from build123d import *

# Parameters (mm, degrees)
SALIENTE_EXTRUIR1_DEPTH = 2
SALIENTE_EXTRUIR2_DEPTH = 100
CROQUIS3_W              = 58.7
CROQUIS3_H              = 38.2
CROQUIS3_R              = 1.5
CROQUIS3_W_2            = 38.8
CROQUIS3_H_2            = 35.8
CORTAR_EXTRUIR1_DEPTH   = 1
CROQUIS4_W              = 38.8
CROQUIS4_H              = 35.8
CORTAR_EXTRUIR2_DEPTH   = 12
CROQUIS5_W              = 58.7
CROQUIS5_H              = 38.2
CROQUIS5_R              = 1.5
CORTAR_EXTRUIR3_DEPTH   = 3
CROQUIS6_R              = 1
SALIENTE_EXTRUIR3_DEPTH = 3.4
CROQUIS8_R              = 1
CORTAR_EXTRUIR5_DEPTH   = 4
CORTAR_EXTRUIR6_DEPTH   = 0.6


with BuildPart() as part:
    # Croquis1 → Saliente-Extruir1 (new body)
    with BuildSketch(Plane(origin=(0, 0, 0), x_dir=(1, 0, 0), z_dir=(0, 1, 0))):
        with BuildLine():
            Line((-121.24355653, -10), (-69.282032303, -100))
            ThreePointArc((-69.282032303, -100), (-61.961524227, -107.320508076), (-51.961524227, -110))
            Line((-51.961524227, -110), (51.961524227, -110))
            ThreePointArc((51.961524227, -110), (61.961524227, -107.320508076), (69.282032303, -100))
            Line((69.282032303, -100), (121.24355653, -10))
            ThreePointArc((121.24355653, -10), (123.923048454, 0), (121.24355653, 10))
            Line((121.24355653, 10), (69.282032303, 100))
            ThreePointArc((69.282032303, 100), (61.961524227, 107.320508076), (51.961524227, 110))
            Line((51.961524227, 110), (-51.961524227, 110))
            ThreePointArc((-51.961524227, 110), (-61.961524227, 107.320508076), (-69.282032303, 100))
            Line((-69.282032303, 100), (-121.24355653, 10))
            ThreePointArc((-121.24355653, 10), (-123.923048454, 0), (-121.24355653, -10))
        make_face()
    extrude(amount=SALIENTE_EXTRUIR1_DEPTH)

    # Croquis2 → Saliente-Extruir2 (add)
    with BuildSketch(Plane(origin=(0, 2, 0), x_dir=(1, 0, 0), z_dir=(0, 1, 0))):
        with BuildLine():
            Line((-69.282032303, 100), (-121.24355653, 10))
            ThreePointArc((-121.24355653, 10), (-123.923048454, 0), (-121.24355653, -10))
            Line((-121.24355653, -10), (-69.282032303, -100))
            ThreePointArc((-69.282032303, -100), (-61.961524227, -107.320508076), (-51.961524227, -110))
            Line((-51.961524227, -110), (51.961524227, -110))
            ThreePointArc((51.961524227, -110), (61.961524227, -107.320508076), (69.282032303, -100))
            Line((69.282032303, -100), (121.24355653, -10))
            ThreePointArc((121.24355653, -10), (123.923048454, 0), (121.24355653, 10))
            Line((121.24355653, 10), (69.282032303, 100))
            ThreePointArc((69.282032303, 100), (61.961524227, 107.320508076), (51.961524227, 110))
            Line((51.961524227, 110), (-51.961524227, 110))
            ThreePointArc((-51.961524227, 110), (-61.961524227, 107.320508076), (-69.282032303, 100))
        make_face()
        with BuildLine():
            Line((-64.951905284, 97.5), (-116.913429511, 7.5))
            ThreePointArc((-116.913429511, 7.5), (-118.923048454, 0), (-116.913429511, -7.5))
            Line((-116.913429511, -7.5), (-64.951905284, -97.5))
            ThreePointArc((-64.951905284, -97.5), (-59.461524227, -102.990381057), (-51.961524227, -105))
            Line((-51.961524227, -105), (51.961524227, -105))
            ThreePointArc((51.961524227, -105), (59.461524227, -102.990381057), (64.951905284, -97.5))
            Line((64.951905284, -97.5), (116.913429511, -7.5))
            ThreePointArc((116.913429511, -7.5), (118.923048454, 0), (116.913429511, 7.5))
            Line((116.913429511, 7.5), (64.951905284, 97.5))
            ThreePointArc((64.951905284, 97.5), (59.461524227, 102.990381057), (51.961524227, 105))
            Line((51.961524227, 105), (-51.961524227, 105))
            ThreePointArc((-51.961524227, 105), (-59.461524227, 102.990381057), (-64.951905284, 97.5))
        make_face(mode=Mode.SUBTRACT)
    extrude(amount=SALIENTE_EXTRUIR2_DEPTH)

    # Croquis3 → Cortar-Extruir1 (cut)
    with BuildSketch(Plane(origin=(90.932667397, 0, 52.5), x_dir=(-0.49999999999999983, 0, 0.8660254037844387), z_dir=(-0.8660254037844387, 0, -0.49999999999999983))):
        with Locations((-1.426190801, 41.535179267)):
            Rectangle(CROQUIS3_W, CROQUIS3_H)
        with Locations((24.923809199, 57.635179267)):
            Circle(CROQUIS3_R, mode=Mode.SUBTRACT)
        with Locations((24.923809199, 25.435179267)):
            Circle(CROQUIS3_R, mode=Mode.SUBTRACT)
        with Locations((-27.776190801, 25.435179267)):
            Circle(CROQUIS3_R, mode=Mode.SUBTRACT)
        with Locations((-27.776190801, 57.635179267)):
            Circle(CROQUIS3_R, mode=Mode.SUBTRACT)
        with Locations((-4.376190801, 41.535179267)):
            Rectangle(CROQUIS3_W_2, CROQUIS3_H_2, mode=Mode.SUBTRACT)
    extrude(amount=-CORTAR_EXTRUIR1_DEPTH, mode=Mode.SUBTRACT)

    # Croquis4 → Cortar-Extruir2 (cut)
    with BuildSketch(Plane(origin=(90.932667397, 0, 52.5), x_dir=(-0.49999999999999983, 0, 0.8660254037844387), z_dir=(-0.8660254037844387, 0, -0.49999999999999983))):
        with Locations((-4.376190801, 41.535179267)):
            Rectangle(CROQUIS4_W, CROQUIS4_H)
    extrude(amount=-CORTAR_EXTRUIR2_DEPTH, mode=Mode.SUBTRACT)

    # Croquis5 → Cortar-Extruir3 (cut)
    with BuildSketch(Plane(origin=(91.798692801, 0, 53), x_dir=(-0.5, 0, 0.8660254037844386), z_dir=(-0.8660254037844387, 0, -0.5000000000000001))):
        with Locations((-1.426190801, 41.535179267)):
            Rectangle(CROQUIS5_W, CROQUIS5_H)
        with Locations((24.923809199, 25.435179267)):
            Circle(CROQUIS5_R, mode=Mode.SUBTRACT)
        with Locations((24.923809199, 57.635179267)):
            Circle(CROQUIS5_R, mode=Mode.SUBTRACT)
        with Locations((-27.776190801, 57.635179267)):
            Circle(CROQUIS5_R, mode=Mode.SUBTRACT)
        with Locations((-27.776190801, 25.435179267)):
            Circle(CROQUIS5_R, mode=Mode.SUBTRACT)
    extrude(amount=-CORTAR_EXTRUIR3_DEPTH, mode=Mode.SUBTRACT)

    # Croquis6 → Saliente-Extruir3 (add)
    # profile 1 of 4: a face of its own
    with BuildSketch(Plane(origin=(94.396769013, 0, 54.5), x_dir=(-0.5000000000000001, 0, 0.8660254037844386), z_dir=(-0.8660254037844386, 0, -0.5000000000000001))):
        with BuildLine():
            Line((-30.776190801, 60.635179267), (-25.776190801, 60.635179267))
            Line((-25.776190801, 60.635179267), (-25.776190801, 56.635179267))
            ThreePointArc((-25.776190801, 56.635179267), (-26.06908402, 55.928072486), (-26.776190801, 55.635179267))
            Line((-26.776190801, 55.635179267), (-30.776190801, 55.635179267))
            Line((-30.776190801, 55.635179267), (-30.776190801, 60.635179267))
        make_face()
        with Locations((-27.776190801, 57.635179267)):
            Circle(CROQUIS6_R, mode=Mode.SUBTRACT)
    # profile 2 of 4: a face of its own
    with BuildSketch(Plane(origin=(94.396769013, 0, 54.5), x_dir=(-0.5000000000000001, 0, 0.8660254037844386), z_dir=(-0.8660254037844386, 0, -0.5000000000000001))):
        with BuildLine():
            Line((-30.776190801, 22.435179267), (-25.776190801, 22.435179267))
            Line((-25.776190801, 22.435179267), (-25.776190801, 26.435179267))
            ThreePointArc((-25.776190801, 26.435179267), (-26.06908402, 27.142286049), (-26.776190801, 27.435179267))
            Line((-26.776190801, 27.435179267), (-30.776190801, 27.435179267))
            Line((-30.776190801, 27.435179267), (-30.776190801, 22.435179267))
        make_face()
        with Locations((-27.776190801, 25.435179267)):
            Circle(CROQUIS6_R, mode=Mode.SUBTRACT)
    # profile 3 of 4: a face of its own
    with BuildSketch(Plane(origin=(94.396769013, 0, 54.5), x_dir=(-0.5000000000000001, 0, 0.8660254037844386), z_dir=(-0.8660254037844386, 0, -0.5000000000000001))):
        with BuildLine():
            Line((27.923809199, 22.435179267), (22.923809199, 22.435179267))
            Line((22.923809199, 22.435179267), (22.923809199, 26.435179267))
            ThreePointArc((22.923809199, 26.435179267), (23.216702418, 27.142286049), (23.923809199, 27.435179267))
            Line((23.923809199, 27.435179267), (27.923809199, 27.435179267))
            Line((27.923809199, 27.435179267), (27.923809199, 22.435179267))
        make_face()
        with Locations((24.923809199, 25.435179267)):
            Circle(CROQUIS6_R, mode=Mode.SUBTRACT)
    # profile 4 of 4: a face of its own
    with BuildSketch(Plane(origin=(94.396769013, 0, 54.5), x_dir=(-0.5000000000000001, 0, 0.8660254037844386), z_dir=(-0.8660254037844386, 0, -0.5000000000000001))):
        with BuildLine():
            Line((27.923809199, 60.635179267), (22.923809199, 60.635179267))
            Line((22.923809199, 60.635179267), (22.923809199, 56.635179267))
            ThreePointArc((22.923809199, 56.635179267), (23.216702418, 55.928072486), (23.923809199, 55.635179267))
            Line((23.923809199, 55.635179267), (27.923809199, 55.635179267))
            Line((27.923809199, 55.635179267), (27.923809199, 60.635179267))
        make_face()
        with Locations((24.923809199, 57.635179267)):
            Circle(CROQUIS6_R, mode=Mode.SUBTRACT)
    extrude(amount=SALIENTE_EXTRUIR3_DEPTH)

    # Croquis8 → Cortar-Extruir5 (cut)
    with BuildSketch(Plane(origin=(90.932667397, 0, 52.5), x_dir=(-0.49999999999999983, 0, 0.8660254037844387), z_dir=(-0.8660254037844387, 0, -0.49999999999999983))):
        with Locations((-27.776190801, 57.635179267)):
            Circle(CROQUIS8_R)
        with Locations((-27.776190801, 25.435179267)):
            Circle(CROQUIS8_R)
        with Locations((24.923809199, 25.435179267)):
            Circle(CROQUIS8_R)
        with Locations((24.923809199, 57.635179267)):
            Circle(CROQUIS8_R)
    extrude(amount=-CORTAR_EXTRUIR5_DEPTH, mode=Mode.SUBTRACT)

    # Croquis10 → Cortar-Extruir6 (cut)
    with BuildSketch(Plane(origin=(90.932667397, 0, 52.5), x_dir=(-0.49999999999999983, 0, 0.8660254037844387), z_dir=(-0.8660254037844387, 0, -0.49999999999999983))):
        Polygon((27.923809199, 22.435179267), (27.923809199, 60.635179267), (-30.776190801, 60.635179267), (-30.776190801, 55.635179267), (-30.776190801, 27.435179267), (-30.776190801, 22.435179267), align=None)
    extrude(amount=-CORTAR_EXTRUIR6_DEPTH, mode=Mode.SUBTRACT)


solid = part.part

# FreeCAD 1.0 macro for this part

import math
import FreeCAD as App
import Part
import Sketcher
Q = App.Units.Quantity


def add_polygon(sketch, points):
    """Adds a closed chain of lines whose ends are joined by coincident constraints."""
    first, n = sketch.GeometryCount, len(points)
    for a, b in zip(points, points[1:] + points[:1]):
        sketch.addGeometry(Part.LineSegment(App.Vector(*a, 0), App.Vector(*b, 0)), False)
    for i in range(n):
        sketch.addConstraint(Sketcher.Constraint("Coincident", first + i, 2, first + (i + 1) % n, 1))

doc = App.newDocument("Part")
body = doc.addObject("PartDesign::Body", "Body")

sketch1 = body.newObject("Sketcher::SketchObject", "Sketch")
sketch1.AttachmentSupport = (doc.getObject("XZ_Plane"), [""])
sketch1.MapMode = "FlatFace"
sketch1.addGeometry([
    Part.LineSegment(App.Vector(-121, 10, 0), App.Vector(-69, 100, 0)),
    Part.ArcOfCircle(Part.Circle(App.Vector(-52, 90, 0), App.Vector(0, 0, 1), 20), math.radians(90), math.radians(150)),
    Part.LineSegment(App.Vector(-52, 110, 0), App.Vector(52, 110, 0)),
    Part.ArcOfCircle(Part.Circle(App.Vector(52, 90, 0), App.Vector(0, 0, 1), 20), math.radians(30), math.radians(90)),
    Part.LineSegment(App.Vector(69, 100, 0), App.Vector(121, 10, 0)),
    Part.ArcOfCircle(Part.Circle(App.Vector(104, 0, 0), App.Vector(0, 0, 1), 20), math.radians(-30), math.radians(30)),
    Part.LineSegment(App.Vector(121, -10, 0), App.Vector(69, -100, 0)),
    Part.ArcOfCircle(Part.Circle(App.Vector(52, -90, 0), App.Vector(0, 0, 1), 20), math.radians(-90), math.radians(-30)),
    Part.LineSegment(App.Vector(52, -110, 0), App.Vector(-52, -110, 0)),
    Part.ArcOfCircle(Part.Circle(App.Vector(-52, -90, 0), App.Vector(0, 0, 1), 20), math.radians(-150), math.radians(-90)),
    Part.LineSegment(App.Vector(-69, -100, 0), App.Vector(-121, -10, 0)),
    Part.ArcOfCircle(Part.Circle(App.Vector(-104, 0, 0), App.Vector(0, 0, 1), 20), math.radians(150), math.radians(210)),
], False)
sketch1.addConstraint([
    Sketcher.Constraint("Tangent", 0, 2, 1, 2),
    Sketcher.Constraint("Tangent", 1, 1, 2, 1),
    Sketcher.Constraint("Tangent", 2, 2, 3, 2),
    Sketcher.Constraint("Tangent", 3, 1, 4, 1),
    Sketcher.Constraint("Tangent", 4, 2, 5, 2),
    Sketcher.Constraint("Tangent", 5, 1, 6, 1),
    Sketcher.Constraint("Tangent", 6, 2, 7, 2),
    Sketcher.Constraint("Tangent", 7, 1, 8, 1),
    Sketcher.Constraint("Tangent", 8, 2, 9, 2),
    Sketcher.Constraint("Tangent", 9, 1, 10, 1),
    Sketcher.Constraint("Tangent", 10, 2, 11, 2),
    Sketcher.Constraint("Tangent", 11, 1, 0, 1),
    Sketcher.Constraint("Horizontal", 2),
    Sketcher.Constraint("Horizontal", 8),
    Sketcher.Constraint("Equal", 1, 3),
    Sketcher.Constraint("Equal", 3, 5),
    Sketcher.Constraint("Equal", 5, 7),
    Sketcher.Constraint("Equal", 7, 9),
    Sketcher.Constraint("Equal", 9, 11),
    Sketcher.Constraint("Symmetric", 1, 3, 7, 3, -1, 1),
    Sketcher.Constraint("Symmetric", 5, 3, 11, 3, -1, 1),
    Sketcher.Constraint("Symmetric", 0, 2, 3, 1, -2),
    Sketcher.Constraint("Parallel", 4, 10),
    Sketcher.Constraint("Radius", 1, Q("20 mm")),
    Sketcher.Constraint("Angle", 0, Q("60 deg")),
    Sketcher.Constraint("DistanceY", -1, 1, 1, 3, Q("90 mm")),
    Sketcher.Constraint("DistanceX", 2, 1, 2, 2, Q("103.923048 mm")),
])
pad1 = body.newObject("PartDesign::Pad", "Pad")
pad1.Profile = sketch1
pad1.Length = 2
pad1.Reversed = True

sketch2 = body.newObject("Sketcher::SketchObject", "Sketch001")
sketch2.AttachmentSupport = (doc.getObject("XZ_Plane"), [""])
sketch2.MapMode = "FlatFace"
sketch2.AttachmentOffset = App.Placement(App.Vector(0, 0, -2), App.Rotation())
sketch2.addGeometry([
    Part.LineSegment(App.Vector(-69, -100, 0), App.Vector(-121, -10, 0)),
    Part.ArcOfCircle(Part.Circle(App.Vector(-104, 0, 0), App.Vector(0, 0, 1), 20), math.radians(150), math.radians(210)),
    Part.LineSegment(App.Vector(-121, 10, 0), App.Vector(-69, 100, 0)),
    Part.ArcOfCircle(Part.Circle(App.Vector(-52, 90, 0), App.Vector(0, 0, 1), 20), math.radians(90), math.radians(150)),
    Part.LineSegment(App.Vector(-52, 110, 0), App.Vector(52, 110, 0)),
    Part.ArcOfCircle(Part.Circle(App.Vector(52, 90, 0), App.Vector(0, 0, 1), 20), math.radians(30), math.radians(90)),
    Part.LineSegment(App.Vector(69, 100, 0), App.Vector(121, 10, 0)),
    Part.ArcOfCircle(Part.Circle(App.Vector(104, 0, 0), App.Vector(0, 0, 1), 20), math.radians(-30), math.radians(30)),
    Part.LineSegment(App.Vector(121, -10, 0), App.Vector(69, -100, 0)),
    Part.ArcOfCircle(Part.Circle(App.Vector(52, -90, 0), App.Vector(0, 0, 1), 20), math.radians(-90), math.radians(-30)),
    Part.LineSegment(App.Vector(52, -110, 0), App.Vector(-52, -110, 0)),
    Part.ArcOfCircle(Part.Circle(App.Vector(-52, -90, 0), App.Vector(0, 0, 1), 20), math.radians(-150), math.radians(-90)),
    Part.LineSegment(App.Vector(-117, -8, 0), App.Vector(-65, -98, 0)),
    Part.ArcOfCircle(Part.Circle(App.Vector(-52, -90, 0), App.Vector(0, 0, 1), 15), math.radians(-150), math.radians(-90)),
    Part.LineSegment(App.Vector(-52, -105, 0), App.Vector(52, -105, 0)),
    Part.ArcOfCircle(Part.Circle(App.Vector(52, -90, 0), App.Vector(0, 0, 1), 15), math.radians(-90), math.radians(-30)),
    Part.LineSegment(App.Vector(65, -98, 0), App.Vector(117, -8, 0)),
    Part.ArcOfCircle(Part.Circle(App.Vector(104, 0, 0), App.Vector(0, 0, 1), 15), math.radians(-30), math.radians(30)),
    Part.LineSegment(App.Vector(117, 8, 0), App.Vector(65, 98, 0)),
    Part.ArcOfCircle(Part.Circle(App.Vector(52, 90, 0), App.Vector(0, 0, 1), 15), math.radians(30), math.radians(90)),
    Part.LineSegment(App.Vector(52, 105, 0), App.Vector(-52, 105, 0)),
    Part.ArcOfCircle(Part.Circle(App.Vector(-52, 90, 0), App.Vector(0, 0, 1), 15), math.radians(90), math.radians(150)),
    Part.LineSegment(App.Vector(-65, 98, 0), App.Vector(-117, 8, 0)),
    Part.ArcOfCircle(Part.Circle(App.Vector(-104, 0, 0), App.Vector(0, 0, 1), 15), math.radians(150), math.radians(210)),
], False)
sketch2.addConstraint([
    Sketcher.Constraint("Tangent", 0, 2, 1, 2),
    Sketcher.Constraint("Tangent", 1, 1, 2, 1),
    Sketcher.Constraint("Tangent", 2, 2, 3, 2),
    Sketcher.Constraint("Tangent", 3, 1, 4, 1),
    Sketcher.Constraint("Tangent", 4, 2, 5, 2),
    Sketcher.Constraint("Tangent", 5, 1, 6, 1),
    Sketcher.Constraint("Tangent", 6, 2, 7, 2),
    Sketcher.Constraint("Tangent", 7, 1, 8, 1),
    Sketcher.Constraint("Tangent", 8, 2, 9, 2),
    Sketcher.Constraint("Tangent", 9, 1, 10, 1),
    Sketcher.Constraint("Tangent", 10, 2, 11, 2),
    Sketcher.Constraint("Tangent", 11, 1, 0, 1),
    Sketcher.Constraint("Tangent", 12, 2, 13, 1),
    Sketcher.Constraint("Tangent", 13, 2, 14, 1),
    Sketcher.Constraint("Tangent", 14, 2, 15, 1),
    Sketcher.Constraint("Tangent", 15, 2, 16, 1),
    Sketcher.Constraint("Tangent", 16, 2, 17, 1),
    Sketcher.Constraint("Tangent", 17, 2, 18, 1),
    Sketcher.Constraint("Tangent", 18, 2, 19, 1),
    Sketcher.Constraint("Tangent", 19, 2, 20, 1),
    Sketcher.Constraint("Tangent", 20, 2, 21, 1),
    Sketcher.Constraint("Tangent", 21, 2, 22, 1),
    Sketcher.Constraint("Tangent", 22, 2, 23, 1),
    Sketcher.Constraint("Tangent", 23, 2, 12, 1),
    Sketcher.Constraint("Horizontal", 4),
    Sketcher.Constraint("Horizontal", 10),
    Sketcher.Constraint("Horizontal", 14),
    Sketcher.Constraint("Horizontal", 20),
    Sketcher.Constraint("Coincident", 13, 3, 11, 3),
    Sketcher.Constraint("Coincident", 15, 3, 9, 3),
    Sketcher.Constraint("Coincident", 17, 3, 7, 3),
    Sketcher.Constraint("Coincident", 19, 3, 5, 3),
    Sketcher.Constraint("Coincident", 21, 3, 3, 3),
    Sketcher.Constraint("Coincident", 23, 3, 1, 3),
    Sketcher.Constraint("Equal", 1, 3),
    Sketcher.Constraint("Equal", 3, 5),
    Sketcher.Constraint("Equal", 5, 7),
    Sketcher.Constraint("Equal", 7, 9),
    Sketcher.Constraint("Equal", 9, 11),
    Sketcher.Constraint("Equal", 15, 17),
    Sketcher.Constraint("Equal", 17, 19),
    Sketcher.Constraint("Equal", 21, 23),
    Sketcher.Constraint("Symmetric", 1, 3, 7, 3, -1, 1),
    Sketcher.Constraint("Symmetric", 3, 3, 9, 3, -1, 1),
    Sketcher.Constraint("Symmetric", 2, 2, 5, 1, -2),
    Sketcher.Constraint("Parallel", 0, 6),
    Sketcher.Constraint("Radius", 1, Q("20 mm")),
    Sketcher.Constraint("Radius", 13, Q("15 mm")),
    Sketcher.Constraint("Angle", 0, Q("120 deg")),
    Sketcher.Constraint("DistanceY", -1, 1, 3, 3, Q("90 mm")),
    Sketcher.Constraint("DistanceX", 4, 1, 4, 2, Q("103.923048 mm")),
])
pad2 = body.newObject("PartDesign::Pad", "Pad001")
pad2.Profile = sketch2
pad2.Length = 100
pad2.Reversed = True

sketch3 = body.newObject("Sketcher::SketchObject", "Sketch002")
sketch3.Placement = App.Placement(App.Vector(90.932667, 0, 52.5), App.Rotation(App.Vector(-0.5, 0, 0.866025404), App.Vector(0, 1, 0), App.Vector(-0.866025404, 0, -0.5), "ZXY"))
add_polygon(sketch3, [(-30.8, 60.6), (-30.8, 22.4), (27.9, 22.4), (27.9, 60.6)])
sketch3.addGeometry(Part.Circle(App.Vector(-27.8, 25.4, 0), App.Vector(0, 0, 1), 1.5), False)
sketch3.addGeometry(Part.Circle(App.Vector(24.9, 25.4, 0), App.Vector(0, 0, 1), 1.5), False)
add_polygon(sketch3, [(15, 23.6), (-23.8, 23.6), (-23.8, 59.4), (15, 59.4)])
sketch3.addGeometry(Part.Circle(App.Vector(-27.8, 57.6, 0), App.Vector(0, 0, 1), 1.5), False)
sketch3.addGeometry(Part.Circle(App.Vector(24.9, 57.6, 0), App.Vector(0, 0, 1), 1.5), False)
sketch3.addConstraint([
    Sketcher.Constraint("Vertical", 0),
    Sketcher.Constraint("Horizontal", 1),
    Sketcher.Constraint("Vertical", 2),
    Sketcher.Constraint("Horizontal", 3),
    Sketcher.Constraint("Horizontal", 6),
    Sketcher.Constraint("Vertical", 7),
    Sketcher.Constraint("Horizontal", 8),
    Sketcher.Constraint("Vertical", 9),
    Sketcher.Constraint("Equal", 4, 5),
    Sketcher.Constraint("Equal", 5, 10),
    Sketcher.Constraint("Equal", 10, 11),
    Sketcher.Constraint("Horizontal", 4, 3, 5, 3),
    Sketcher.Constraint("Horizontal", 10, 3, 11, 3),
    Sketcher.Constraint("Vertical", 4, 3, 10, 3),
    Sketcher.Constraint("Vertical", 5, 3, 11, 3),
    Sketcher.Constraint("Diameter", 4, Q("3 mm")),
    Sketcher.Constraint("DistanceX", 1, 1, 1, 2, Q("58.7 mm")),
    Sketcher.Constraint("DistanceX", 6, 2, 6, 1, Q("38.8 mm")),
    Sketcher.Constraint("DistanceY", 0, 2, 0, 1, Q("38.2 mm")),
    Sketcher.Constraint("DistanceY", 7, 1, 7, 2, Q("35.8 mm")),
    Sketcher.Constraint("DistanceX", 0, 2, 4, 3, Q("3 mm")),
    Sketcher.Constraint("DistanceY", 0, 2, 4, 3, Q("3 mm")),
    Sketcher.Constraint("DistanceX", 5, 3, 1, 2, Q("3 mm")),
    Sketcher.Constraint("DistanceY", 11, 3, 2, 2, Q("3 mm")),
    Sketcher.Constraint("DistanceX", 4, 3, 6, 2, Q("4 mm")),
    Sketcher.Constraint("DistanceY", 6, 2, 10, 3, Q("34 mm")),
    Sketcher.Constraint("DistanceX", 4, 3, -1, 1, Q("27.776191 mm")),
    Sketcher.Constraint("DistanceY", -1, 1, 4, 3, Q("25.435179 mm")),
])
pocket1 = body.newObject("PartDesign::Pocket", "Pocket")
pocket1.Profile = sketch3
pocket1.Length = 1

sketch4 = body.newObject("Sketcher::SketchObject", "Sketch003")
sketch4.Placement = App.Placement(App.Vector(90.932667, 0, 52.5), App.Rotation(App.Vector(-0.5, 0, 0.866025404), App.Vector(0, 1, 0), App.Vector(-0.866025404, 0, -0.5), "ZXY"))
add_polygon(sketch4, [(-24, 59), (-24, 24), (15, 24), (15, 59)])
sketch4.addConstraint([
    Sketcher.Constraint("Vertical", 0),
    Sketcher.Constraint("Horizontal", 1),
    Sketcher.Constraint("Vertical", 2),
    Sketcher.Constraint("Horizontal", 3),
    Sketcher.Constraint("DistanceX", 1, 1, 1, 2, Q("38.8 mm")),
    Sketcher.Constraint("DistanceY", 0, 2, 0, 1, Q("35.8 mm")),
    Sketcher.Constraint("DistanceX", 0, 2, -1, 1, Q("23.776191 mm")),
    Sketcher.Constraint("DistanceY", -1, 1, 0, 2, Q("23.635179 mm")),
])
pocket2 = body.newObject("PartDesign::Pocket", "Pocket001")
pocket2.Profile = sketch4
pocket2.Length = 12

sketch5 = body.newObject("Sketcher::SketchObject", "Sketch004")
sketch5.Placement = App.Placement(App.Vector(91.798693, 0, 53), App.Rotation(App.Vector(-0.5, 0, 0.866025404), App.Vector(0, 1, 0), App.Vector(-0.866025404, 0, -0.5), "ZXY"))
add_polygon(sketch5, [(-30.8, 60.6), (-30.8, 22.4), (27.9, 22.4), (27.9, 60.6)])
sketch5.addGeometry(Part.Circle(App.Vector(-27.8, 25.4, 0), App.Vector(0, 0, 1), 1.5), False)
sketch5.addGeometry(Part.Circle(App.Vector(24.9, 25.4, 0), App.Vector(0, 0, 1), 1.5), False)
sketch5.addGeometry(Part.Circle(App.Vector(-27.8, 57.6, 0), App.Vector(0, 0, 1), 1.5), False)
sketch5.addGeometry(Part.Circle(App.Vector(24.9, 57.6, 0), App.Vector(0, 0, 1), 1.5), False)
sketch5.addConstraint([
    Sketcher.Constraint("Vertical", 0),
    Sketcher.Constraint("Horizontal", 1),
    Sketcher.Constraint("Vertical", 2),
    Sketcher.Constraint("Horizontal", 3),
    Sketcher.Constraint("Equal", 4, 5),
    Sketcher.Constraint("Equal", 5, 6),
    Sketcher.Constraint("Equal", 6, 7),
    Sketcher.Constraint("Horizontal", 4, 3, 5, 3),
    Sketcher.Constraint("Horizontal", 6, 3, 7, 3),
    Sketcher.Constraint("Vertical", 4, 3, 6, 3),
    Sketcher.Constraint("Vertical", 5, 3, 7, 3),
    Sketcher.Constraint("Diameter", 4, Q("3 mm")),
    Sketcher.Constraint("DistanceX", 1, 1, 1, 2, Q("58.7 mm")),
    Sketcher.Constraint("DistanceY", 0, 2, 0, 1, Q("38.2 mm")),
    Sketcher.Constraint("DistanceX", 0, 2, 4, 3, Q("3 mm")),
    Sketcher.Constraint("DistanceY", 0, 2, 4, 3, Q("3 mm")),
    Sketcher.Constraint("DistanceX", 5, 3, 1, 2, Q("3 mm")),
    Sketcher.Constraint("DistanceY", 7, 3, 2, 2, Q("3 mm")),
    Sketcher.Constraint("DistanceX", 4, 3, -1, 1, Q("27.776191 mm")),
    Sketcher.Constraint("DistanceY", -1, 1, 4, 3, Q("25.435179 mm")),
])
pocket3 = body.newObject("PartDesign::Pocket", "Pocket002")
pocket3.Profile = sketch5
pocket3.Length = 3

sketch6 = body.newObject("Sketcher::SketchObject", "Sketch005")
sketch6.Placement = App.Placement(App.Vector(94.396769, 0, 54.5), App.Rotation(App.Vector(-0.5, 0, 0.866025404), App.Vector(0, 1, 0), App.Vector(-0.866025404, 0, -0.5), "ZXY"))
sketch6.addGeometry([
    Part.LineSegment(App.Vector(-25.8, 60.6, 0), App.Vector(-30.8, 60.6, 0)),
    Part.LineSegment(App.Vector(-30.8, 60.6, 0), App.Vector(-30.8, 55.6, 0)),
    Part.LineSegment(App.Vector(-30.8, 55.6, 0), App.Vector(-26.8, 55.6, 0)),
    Part.ArcOfCircle(Part.Circle(App.Vector(-26.8, 56.6, 0), App.Vector(0, 0, 1), 1), math.radians(-90), math.radians(0)),
    Part.LineSegment(App.Vector(-25.8, 56.6, 0), App.Vector(-25.8, 60.6, 0)),
    Part.Circle(App.Vector(-27.8, 57.6, 0), App.Vector(0, 0, 1), 1),
    Part.LineSegment(App.Vector(-30.8, 22.4, 0), App.Vector(-25.8, 22.4, 0)),
    Part.LineSegment(App.Vector(-25.8, 22.4, 0), App.Vector(-25.8, 26.4, 0)),
    Part.ArcOfCircle(Part.Circle(App.Vector(-26.8, 26.4, 0), App.Vector(0, 0, 1), 1), math.radians(0), math.radians(90)),
    Part.LineSegment(App.Vector(-26.8, 27.4, 0), App.Vector(-30.8, 27.4, 0)),
    Part.LineSegment(App.Vector(-30.8, 27.4, 0), App.Vector(-30.8, 22.4, 0)),
    Part.Circle(App.Vector(-27.8, 25.4, 0), App.Vector(0, 0, 1), 1),
    Part.LineSegment(App.Vector(22.9, 22.4, 0), App.Vector(27.9, 22.4, 0)),
    Part.LineSegment(App.Vector(27.9, 22.4, 0), App.Vector(27.9, 27.4, 0)),
    Part.LineSegment(App.Vector(27.9, 27.4, 0), App.Vector(23.9, 27.4, 0)),
    Part.ArcOfCircle(Part.Circle(App.Vector(23.9, 26.4, 0), App.Vector(0, 0, 1), 1), math.radians(90), math.radians(180)),
    Part.LineSegment(App.Vector(22.9, 26.4, 0), App.Vector(22.9, 22.4, 0)),
    Part.Circle(App.Vector(24.9, 25.4, 0), App.Vector(0, 0, 1), 1),
    Part.LineSegment(App.Vector(27.9, 60.6, 0), App.Vector(22.9, 60.6, 0)),
    Part.LineSegment(App.Vector(22.9, 60.6, 0), App.Vector(22.9, 56.6, 0)),
    Part.ArcOfCircle(Part.Circle(App.Vector(23.9, 56.6, 0), App.Vector(0, 0, 1), 1), math.radians(-180), math.radians(-90)),
    Part.LineSegment(App.Vector(23.9, 55.6, 0), App.Vector(27.9, 55.6, 0)),
    Part.LineSegment(App.Vector(27.9, 55.6, 0), App.Vector(27.9, 60.6, 0)),
    Part.Circle(App.Vector(24.9, 57.6, 0), App.Vector(0, 0, 1), 1),
], False)
sketch6.addConstraint([
    Sketcher.Constraint("Coincident", 0, 2, 1, 1),
    Sketcher.Constraint("Coincident", 1, 2, 2, 1),
    Sketcher.Constraint("Tangent", 2, 2, 3, 1),
    Sketcher.Constraint("Tangent", 3, 2, 4, 1),
    Sketcher.Constraint("Coincident", 4, 2, 0, 1),
    Sketcher.Constraint("Coincident", 6, 2, 7, 1),
    Sketcher.Constraint("Tangent", 7, 2, 8, 1),
    Sketcher.Constraint("Tangent", 8, 2, 9, 1),
    Sketcher.Constraint("Coincident", 9, 2, 10, 1),
    Sketcher.Constraint("Coincident", 10, 2, 6, 1),
    Sketcher.Constraint("Coincident", 12, 2, 13, 1),
    Sketcher.Constraint("Coincident", 13, 2, 14, 1),
    Sketcher.Constraint("Tangent", 14, 2, 15, 1),
    Sketcher.Constraint("Tangent", 15, 2, 16, 1),
    Sketcher.Constraint("Coincident", 16, 2, 12, 1),
    Sketcher.Constraint("Coincident", 18, 2, 19, 1),
    Sketcher.Constraint("Tangent", 19, 2, 20, 1),
    Sketcher.Constraint("Tangent", 20, 2, 21, 1),
    Sketcher.Constraint("Coincident", 21, 2, 22, 1),
    Sketcher.Constraint("Coincident", 22, 2, 18, 1),
    Sketcher.Constraint("Horizontal", 0),
    Sketcher.Constraint("Vertical", 1),
    Sketcher.Constraint("Horizontal", 2),
    Sketcher.Constraint("Vertical", 4),
    Sketcher.Constraint("Horizontal", 6),
    Sketcher.Constraint("Vertical", 7),
    Sketcher.Constraint("Horizontal", 9),
    Sketcher.Constraint("Vertical", 10),
    Sketcher.Constraint("Horizontal", 12),
    Sketcher.Constraint("Vertical", 13),
    Sketcher.Constraint("Horizontal", 14),
    Sketcher.Constraint("Vertical", 16),
    Sketcher.Constraint("Horizontal", 18),
    Sketcher.Constraint("Vertical", 19),
    Sketcher.Constraint("Horizontal", 21),
    Sketcher.Constraint("Vertical", 22),
    Sketcher.Constraint("Equal", 3, 5),
    Sketcher.Constraint("Equal", 5, 8),
    Sketcher.Constraint("Equal", 8, 11),
    Sketcher.Constraint("Equal", 11, 15),
    Sketcher.Constraint("Equal", 15, 17),
    Sketcher.Constraint("Equal", 17, 20),
    Sketcher.Constraint("Equal", 20, 23),
    Sketcher.Constraint("Horizontal", 8, 3, 15, 3),
    Sketcher.Constraint("Horizontal", 11, 3, 17, 3),
    Sketcher.Constraint("Horizontal", 3, 3, 20, 3),
    Sketcher.Constraint("Horizontal", 5, 3, 23, 3),
    Sketcher.Constraint("Horizontal", 10, 2, 12, 2),
    Sketcher.Constraint("Horizontal", 4, 2, 18, 2),
    Sketcher.Constraint("Vertical", 3, 3, 8, 3),
    Sketcher.Constraint("Vertical", 5, 3, 11, 3),
    Sketcher.Constraint("Vertical", 15, 3, 20, 3),
    Sketcher.Constraint("Vertical", 17, 3, 23, 3),
    Sketcher.Constraint("Vertical", 1, 2, 9, 2),
    Sketcher.Constraint("Vertical", 13, 2, 21, 2),
    Sketcher.Constraint("Equal", 6, 12),
    Sketcher.Constraint("Equal", 18, 1),
    Sketcher.Constraint("Equal", 4, 7),
    Sketcher.Constraint("Diameter", 5, Q("2 mm")),
    Sketcher.Constraint("DistanceX", 0, 2, 0, 1, Q("5 mm")),
    Sketcher.Constraint("DistanceX", 5, 3, 3, 3, Q("1 mm")),
    Sketcher.Constraint("DistanceY", 3, 3, 5, 3, Q("1 mm")),
    Sketcher.Constraint("DistanceY", 11, 3, 8, 3, Q("1 mm")),
    Sketcher.Constraint("DistanceX", 15, 3, 17, 3, Q("1 mm")),
    Sketcher.Constraint("DistanceY", 8, 3, 3, 3, Q("30.2 mm")),
    Sketcher.Constraint("DistanceX", 8, 3, 15, 3, Q("50.7 mm")),
    Sketcher.Constraint("DistanceX", 3, 3, -1, 1, Q("26.776191 mm")),
    Sketcher.Constraint("DistanceY", -1, 1, 3, 3, Q("56.635179 mm")),
])
pad3 = body.newObject("PartDesign::Pad", "Pad002")
pad3.Profile = sketch6
pad3.Length = 3.4

sketch7 = body.newObject("Sketcher::SketchObject", "Sketch006")
sketch7.Placement = App.Placement(App.Vector(90.932667, 0, 52.5), App.Rotation(App.Vector(-0.5, 0, 0.866025404), App.Vector(0, 1, 0), App.Vector(-0.866025404, 0, -0.5), "ZXY"))
sketch7.addGeometry([
    Part.Circle(App.Vector(-27.8, 57.6, 0), App.Vector(0, 0, 1), 1),
    Part.Circle(App.Vector(-27.8, 25.4, 0), App.Vector(0, 0, 1), 1),
    Part.Circle(App.Vector(24.9, 25.4, 0), App.Vector(0, 0, 1), 1),
    Part.Circle(App.Vector(24.9, 57.6, 0), App.Vector(0, 0, 1), 1),
], False)
sketch7.addConstraint([
    Sketcher.Constraint("Equal", 0, 1),
    Sketcher.Constraint("Equal", 1, 2),
    Sketcher.Constraint("Equal", 2, 3),
    Sketcher.Constraint("Horizontal", 1, 3, 2, 3),
    Sketcher.Constraint("Horizontal", 0, 3, 3, 3),
    Sketcher.Constraint("Vertical", 0, 3, 1, 3),
    Sketcher.Constraint("Vertical", 2, 3, 3, 3),
    Sketcher.Constraint("Diameter", 0, Q("2 mm")),
    Sketcher.Constraint("DistanceY", 1, 3, 0, 3, Q("32.2 mm")),
    Sketcher.Constraint("DistanceX", 1, 3, 2, 3, Q("52.7 mm")),
    Sketcher.Constraint("DistanceX", 0, 3, -1, 1, Q("27.776191 mm")),
    Sketcher.Constraint("DistanceY", -1, 1, 0, 3, Q("57.635179 mm")),
])
pocket4 = body.newObject("PartDesign::Pocket", "Pocket003")
pocket4.Profile = sketch7
pocket4.Length = 4

sketch8 = body.newObject("Sketcher::SketchObject", "Sketch007")
sketch8.Placement = App.Placement(App.Vector(90.932667, 0, 52.5), App.Rotation(App.Vector(-0.5, 0, 0.866025404), App.Vector(0, 1, 0), App.Vector(-0.866025404, 0, -0.5), "ZXY"))
add_polygon(sketch8, [(28, 22), (28, 61), (-31, 61), (-31, 22)])
sketch8.addConstraint([
    Sketcher.Constraint("Vertical", 0),
    Sketcher.Constraint("Horizontal", 1),
    Sketcher.Constraint("Vertical", 2),
    Sketcher.Constraint("Horizontal", 3),
    Sketcher.Constraint("DistanceX", 1, 2, 1, 1, Q("58.7 mm")),
    Sketcher.Constraint("DistanceY", 0, 1, 0, 2, Q("38.2 mm")),
    Sketcher.Constraint("DistanceX", -1, 1, 0, 2, Q("27.923809 mm")),
    Sketcher.Constraint("DistanceY", -1, 1, 0, 2, Q("60.635179 mm")),
])
pocket5 = body.newObject("PartDesign::Pocket", "Pocket004")
pocket5.Profile = sketch8
pocket5.Length = 0.6

doc.recompute()
